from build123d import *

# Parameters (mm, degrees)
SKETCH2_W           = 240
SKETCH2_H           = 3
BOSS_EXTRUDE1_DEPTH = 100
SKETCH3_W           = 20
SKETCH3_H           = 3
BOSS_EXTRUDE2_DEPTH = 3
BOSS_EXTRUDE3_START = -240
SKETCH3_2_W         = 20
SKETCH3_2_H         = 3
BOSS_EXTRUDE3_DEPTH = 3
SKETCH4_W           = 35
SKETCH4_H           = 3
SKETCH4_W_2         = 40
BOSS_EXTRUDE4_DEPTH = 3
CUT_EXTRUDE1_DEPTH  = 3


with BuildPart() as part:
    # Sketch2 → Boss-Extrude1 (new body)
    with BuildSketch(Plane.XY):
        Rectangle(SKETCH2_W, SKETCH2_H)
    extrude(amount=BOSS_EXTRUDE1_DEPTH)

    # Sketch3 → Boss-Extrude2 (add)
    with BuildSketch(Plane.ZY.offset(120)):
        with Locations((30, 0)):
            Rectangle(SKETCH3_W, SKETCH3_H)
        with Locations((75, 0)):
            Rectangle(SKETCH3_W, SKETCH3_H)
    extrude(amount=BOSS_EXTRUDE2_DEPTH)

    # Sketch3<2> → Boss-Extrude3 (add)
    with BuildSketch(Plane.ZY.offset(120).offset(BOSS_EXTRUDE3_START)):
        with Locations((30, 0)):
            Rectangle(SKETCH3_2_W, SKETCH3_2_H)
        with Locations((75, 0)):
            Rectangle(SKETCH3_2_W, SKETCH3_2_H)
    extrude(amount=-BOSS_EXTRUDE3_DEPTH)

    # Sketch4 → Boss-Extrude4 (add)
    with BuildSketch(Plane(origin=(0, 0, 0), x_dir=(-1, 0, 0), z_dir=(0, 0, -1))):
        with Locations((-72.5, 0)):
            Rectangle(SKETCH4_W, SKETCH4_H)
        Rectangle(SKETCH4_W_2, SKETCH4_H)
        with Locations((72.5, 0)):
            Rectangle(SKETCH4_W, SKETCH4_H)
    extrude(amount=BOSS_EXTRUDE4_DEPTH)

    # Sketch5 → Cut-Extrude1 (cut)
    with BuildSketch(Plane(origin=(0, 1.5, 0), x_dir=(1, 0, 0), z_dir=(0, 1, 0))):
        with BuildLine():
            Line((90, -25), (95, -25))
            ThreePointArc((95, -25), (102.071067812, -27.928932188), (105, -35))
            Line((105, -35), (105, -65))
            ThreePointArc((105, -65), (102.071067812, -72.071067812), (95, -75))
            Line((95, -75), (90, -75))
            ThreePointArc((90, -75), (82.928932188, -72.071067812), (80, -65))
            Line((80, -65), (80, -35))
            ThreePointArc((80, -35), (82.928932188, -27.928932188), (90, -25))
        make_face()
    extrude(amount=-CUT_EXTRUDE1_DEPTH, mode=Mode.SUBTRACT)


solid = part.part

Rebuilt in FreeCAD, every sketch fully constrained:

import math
import FreeCAD as App
import Part
import Sketcher

V = App.Vector

doc = App.newDocument("Part")
body = doc.addObject("PartDesign::Body", "Body")

# Sketch on XY plane
sketch1 = body.newObject("Sketcher::SketchObject", "Sketch")
sketch1.AttachmentSupport = (doc.getObject("XY_Plane"), [""])
sketch1.MapMode = "FlatFace"
sketch1.addGeometry([
    Part.LineSegment(V(-120, 1.5, 0), V(-120, -1.5, 0)),
    Part.LineSegment(V(-120, -1.5, 0), V(120, -1.5, 0)),
    Part.LineSegment(V(120, -1.5, 0), V(120, 1.5, 0)),
    Part.LineSegment(V(120, 1.5, 0), V(-120, 1.5, 0)),
], False)
sketch1.addConstraint([
    Sketcher.Constraint("Coincident", 0, 2, 1, 1),
    Sketcher.Constraint("Coincident", 1, 2, 2, 1),
    Sketcher.Constraint("Coincident", 2, 2, 3, 1),
    Sketcher.Constraint("Coincident", 3, 2, 0, 1),
    Sketcher.Constraint("Vertical", 0),
    Sketcher.Constraint("Horizontal", 1),
    Sketcher.Constraint("Vertical", 2),
    Sketcher.Constraint("Horizontal", 3),
    Sketcher.Constraint("Symmetric", 0, 2, 2, 2, -1, 1),
    Sketcher.Constraint("DistanceX", 1, 1, 1, 2, 240.0),
    Sketcher.Constraint("DistanceY", 0, 2, 0, 1, 3.0),
])
pad1 = body.newObject("PartDesign::Pad", "Pad")
pad1.Profile = sketch1
pad1.Length = 100

# Sketch on YZ plane
sketch2 = body.newObject("Sketcher::SketchObject", "Sketch001")
sketch2.AttachmentSupport = (doc.getObject("YZ_Plane"), [""])
sketch2.MapMode = "FlatFace"
sketch2.AttachmentOffset = App.Placement(V(0, 0, -120), App.Rotation())
sketch2.addGeometry([
    Part.LineSegment(V(1.5, 20, 0), V(-1.5, 20, 0)),  # 0
    Part.LineSegment(V(-1.5, 20, 0), V(-1.5, 40, 0)),  # 1
    Part.LineSegment(V(-1.5, 40, 0), V(1.5, 40, 0)),  # 2
    Part.LineSegment(V(1.5, 40, 0), V(1.5, 20, 0)),  # 3
    Part.LineSegment(V(1.5, 65, 0), V(-1.5, 65, 0)),  # 4
    Part.LineSegment(V(-1.5, 65, 0), V(-1.5, 85, 0)),  # 5
    Part.LineSegment(V(-1.5, 85, 0), V(1.5, 85, 0)),  # 6
    Part.LineSegment(V(1.5, 85, 0), V(1.5, 65, 0)),  # 7
], False)
sketch2.addConstraint([
    Sketcher.Constraint("Coincident", 0, 2, 1, 1),
    Sketcher.Constraint("Coincident", 1, 2, 2, 1),
    Sketcher.Constraint("Coincident", 2, 2, 3, 1),
    Sketcher.Constraint("Coincident", 3, 2, 0, 1),
    Sketcher.Constraint("Coincident", 4, 2, 5, 1),
    Sketcher.Constraint("Coincident", 5, 2, 6, 1),
    Sketcher.Constraint("Coincident", 6, 2, 7, 1),
    Sketcher.Constraint("Coincident", 7, 2, 4, 1),
    Sketcher.Constraint("Horizontal", 0),
    Sketcher.Constraint("Vertical", 1),
    Sketcher.Constraint("Horizontal", 2),
    Sketcher.Constraint("Vertical", 3),
    Sketcher.Constraint("Horizontal", 4),
    Sketcher.Constraint("Vertical", 5),
    Sketcher.Constraint("Horizontal", 6),
    Sketcher.Constraint("Vertical", 7),
    Sketcher.Constraint("Vertical", 1, 2, 4, 2),
    Sketcher.Constraint("Vertical", 3, 2, 6, 2),
    Sketcher.Constraint("Equal", 3, 5),
    Sketcher.Constraint("DistanceX", 0, 2, 0, 1, 3.0),
    Sketcher.Constraint("DistanceY", 1, 1, 1, 2, 20.0),
    Sketcher.Constraint("DistanceY", -1, 1, 0, 2, 20.0),
    Sketcher.Constraint("DistanceY", -1, 1, 4, 2, 65.0),
    Sketcher.Constraint("DistanceX", 0, 2, -1, 1, 1.5),
])
pad2 = body.newObject("PartDesign::Pad", "Pad001")
pad2.Profile = sketch2
pad2.Length = 3
pad2.Reversed = True

# Sketch on YZ plane
sketch3 = body.newObject("Sketcher::SketchObject", "Sketch002")
sketch3.AttachmentSupport = (doc.getObject("YZ_Plane"), [""])
sketch3.MapMode = "FlatFace"
sketch3.AttachmentOffset = App.Placement(V(0, 0, 120), App.Rotation())
sketch3.addGeometry([
    Part.LineSegment(V(1.5, 20, 0), V(-1.5, 20, 0)),  # 0
    Part.LineSegment(V(-1.5, 20, 0), V(-1.5, 40, 0)),  # 1
    Part.LineSegment(V(-1.5, 40, 0), V(1.5, 40, 0)),  # 2
    Part.LineSegment(V(1.5, 40, 0), V(1.5, 20, 0)),  # 3
    Part.LineSegment(V(1.5, 65, 0), V(-1.5, 65, 0)),  # 4
    Part.LineSegment(V(-1.5, 65, 0), V(-1.5, 85, 0)),  # 5
    Part.LineSegment(V(-1.5, 85, 0), V(1.5, 85, 0)),  # 6
    Part.LineSegment(V(1.5, 85, 0), V(1.5, 65, 0)),  # 7
], False)
sketch3.addConstraint([
    Sketcher.Constraint("Coincident", 0, 2, 1, 1),
    Sketcher.Constraint("Coincident", 1, 2, 2, 1),
    Sketcher.Constraint("Coincident", 2, 2, 3, 1),
    Sketcher.Constraint("Coincident", 3, 2, 0, 1),
    Sketcher.Constraint("Coincident", 4, 2, 5, 1),
    Sketcher.Constraint("Coincident", 5, 2, 6, 1),
    Sketcher.Constraint("Coincident", 6, 2, 7, 1),
    Sketcher.Constraint("Coincident", 7, 2, 4, 1),
    Sketcher.Constraint("Horizontal", 0),
    Sketcher.Constraint("Vertical", 1),
    Sketcher.Constraint("Horizontal", 2),
    Sketcher.Constraint("Vertical", 3),
    Sketcher.Constraint("Horizontal", 4),
    Sketcher.Constraint("Vertical", 5),
    Sketcher.Constraint("Horizontal", 6),
    Sketcher.Constraint("Vertical", 7),
    Sketcher.Constraint("Vertical", 1, 2, 4, 2),
    Sketcher.Constraint("Vertical", 3, 2, 6, 2),
    Sketcher.Constraint("Equal", 3, 5),
    Sketcher.Constraint("DistanceX", 0, 2, 0, 1, 3.0),
    Sketcher.Constraint("DistanceY", 1, 1, 1, 2, 20.0),
    Sketcher.Constraint("DistanceY", -1, 1, 0, 2, 20.0),
    Sketcher.Constraint("DistanceY", -1, 1, 4, 2, 65.0),
    Sketcher.Constraint("DistanceX", 0, 2, -1, 1, 1.5),
])
pad3 = body.newObject("PartDesign::Pad", "Pad002")
pad3.Profile = sketch3
pad3.Length = 3

# Sketch on XY plane
sketch4 = body.newObject("Sketcher::SketchObject", "Sketch003")
sketch4.AttachmentSupport = (doc.getObject("XY_Plane"), [""])
sketch4.MapMode = "FlatFace"
sketch4.addGeometry([
    Part.LineSegment(V(90, 1.5, 0), V(90, -1.5, 0)),  # 0
    Part.LineSegment(V(90, -1.5, 0), V(55, -1.5, 0)),  # 1
    Part.LineSegment(V(55, -1.5, 0), V(55, 1.5, 0)),  # 2
    Part.LineSegment(V(55, 1.5, 0), V(90, 1.5, 0)),  # 3
    Part.LineSegment(V(20, 1.5, 0), V(20, -1.5, 0)),  # 4
    Part.LineSegment(V(20, -1.5, 0), V(-20, -1.5, 0)),  # 5
    Part.LineSegment(V(-20, -1.5, 0), V(-20, 1.5, 0)),  # 6
    Part.LineSegment(V(-20, 1.5, 0), V(20, 1.5, 0)),  # 7
    Part.LineSegment(V(-55, 1.5, 0), V(-55, -1.5, 0)),  # 8
    Part.LineSegment(V(-55, -1.5, 0), V(-90, -1.5, 0)),  # 9
    Part.LineSegment(V(-90, -1.5, 0), V(-90, 1.5, 0)),  # 10
    Part.LineSegment(V(-90, 1.5, 0), V(-55, 1.5, 0)),  # 11
], False)
sketch4.addConstraint([
    Sketcher.Constraint("Coincident", 0, 2, 1, 1),
    Sketcher.Constraint("Coincident", 1, 2, 2, 1),
    Sketcher.Constraint("Coincident", 2, 2, 3, 1),
    Sketcher.Constraint("Coincident", 3, 2, 0, 1),
    Sketcher.Constraint("Coincident", 4, 2, 5, 1),
    Sketcher.Constraint("Coincident", 5, 2, 6, 1),
    Sketcher.Constraint("Coincident", 6, 2, 7, 1),
    Sketcher.Constraint("Coincident", 7, 2, 4, 1),
    Sketcher.Constraint("Coincident", 8, 2, 9, 1),
    Sketcher.Constraint("Coincident", 9, 2, 10, 1),
    Sketcher.Constraint("Coincident", 10, 2, 11, 1),
    Sketcher.Constraint("Coincident", 11, 2, 8, 1),
    Sketcher.Constraint("Vertical", 0),
    Sketcher.Constraint("Horizontal", 1),
    Sketcher.Constraint("Vertical", 2),
    Sketcher.Constraint("Horizontal", 3),
    Sketcher.Constraint("Vertical", 4),
    Sketcher.Constraint("Horizontal", 5),
    Sketcher.Constraint("Vertical", 6),
    Sketcher.Constraint("Horizontal", 7),
    Sketcher.Constraint("Vertical", 8),
    Sketcher.Constraint("Horizontal", 9),
    Sketcher.Constraint("Vertical", 10),
    Sketcher.Constraint("Horizontal", 11),
    Sketcher.Constraint("Symmetric", 4, 2, 6, 2, -1, 1),
    Sketcher.Constraint("Symmetric", 2, 2, 8, 2, -1, 1),
    Sketcher.Constraint("Symmetric", 0, 2, 10, 2, -1, 1),
    Sketcher.Constraint("Horizontal", 1, 2, 4, 2),
    Sketcher.Constraint("Horizontal", 3, 2, 6, 2),
    Sketcher.Constraint("DistanceX", 1, 2, 1, 1, 35.0),
    Sketcher.Constraint("DistanceX", 5, 2, 5, 1, 40.0),
    Sketcher.Constraint("DistanceY", 0, 2, 0, 1, 3.0),
    Sketcher.Constraint("DistanceX", -1, 1, 0, 2, 90.0),
])
pad4 = body.newObject("PartDesign::Pad", "Pad003")
pad4.Profile = sketch4
pad4.Length = 3
pad4.Reversed = True

# Sketch on XZ plane
sketch5 = body.newObject("Sketcher::SketchObject", "Sketch004")
sketch5.AttachmentSupport = (doc.getObject("XZ_Plane"), [""])
sketch5.MapMode = "FlatFace"
sketch5.AttachmentOffset = App.Placement(V(0, 0, -1.5), App.Rotation())
sketch5.addGeometry([
    Part.LineSegment(V(95, 25, 0), V(90, 25, 0)),  # 0
    Part.ArcOfCircle(Part.Circle(V(90, 35, 0), V(0, 0, 1), 10), math.radians(180), math.radians(270)),  # 1
    Part.LineSegment(V(80, 35, 0), V(80, 65, 0)),  # 2
    Part.ArcOfCircle(Part.Circle(V(90, 65, 0), V(0, 0, 1), 10), math.radians(90), math.radians(180)),  # 3
    Part.LineSegment(V(90, 75, 0), V(95, 75, 0)),  # 4
    Part.ArcOfCircle(Part.Circle(V(95, 65, 0), V(0, 0, 1), 10), math.radians(0), math.radians(90)),  # 5
    Part.LineSegment(V(105, 65, 0), V(105, 35, 0)),  # 6
    Part.ArcOfCircle(Part.Circle(V(95, 35, 0), V(0, 0, 1), 10), math.radians(-90), math.radians(0)),  # 7
], False)
sketch5.addConstraint([
    Sketcher.Constraint("Tangent", 0, 2, 1, 2),
    Sketcher.Constraint("Tangent", 1, 1, 2, 1),
    Sketcher.Constraint("Tangent", 2, 2, 3, 2),
    Sketcher.Constraint("Tangent", 3, 1, 4, 1),
    Sketcher.Constraint("Tangent", 4, 2, 5, 2),
    Sketcher.Constraint("Tangent", 5, 1, 6, 1),
    Sketcher.Constraint("Tangent", 6, 2, 7, 2),
    Sketcher.Constraint("Tangent", 7, 1, 0, 1),
    Sketcher.Constraint("Horizontal", 0),
    Sketcher.Constraint("Vertical", 2),
    Sketcher.Constraint("Horizontal", 4),
    Sketcher.Constraint("Vertical", 6),
    Sketcher.Constraint("Equal", 1, 3),
    Sketcher.Constraint("Equal", 3, 5),
    Sketcher.Constraint("Equal", 5, 7),
    Sketcher.Constraint("Radius", 1, 10.0),
    Sketcher.Constraint("DistanceX", 0, 2, 0, 1, 5.0),
    Sketcher.Constraint("DistanceY", 2, 1, 2, 2, 30.0),
    Sketcher.Constraint("DistanceX", -1, 1, 1, 3, 90.0),
    Sketcher.Constraint("DistanceY", -1, 1, 1, 3, 35.0),
])
pocket1 = body.newObject("PartDesign::Pocket", "Pocket")
pocket1.Profile = sketch5
pocket1.Length = 3
pocket1.Reversed = True

doc.recompute()
